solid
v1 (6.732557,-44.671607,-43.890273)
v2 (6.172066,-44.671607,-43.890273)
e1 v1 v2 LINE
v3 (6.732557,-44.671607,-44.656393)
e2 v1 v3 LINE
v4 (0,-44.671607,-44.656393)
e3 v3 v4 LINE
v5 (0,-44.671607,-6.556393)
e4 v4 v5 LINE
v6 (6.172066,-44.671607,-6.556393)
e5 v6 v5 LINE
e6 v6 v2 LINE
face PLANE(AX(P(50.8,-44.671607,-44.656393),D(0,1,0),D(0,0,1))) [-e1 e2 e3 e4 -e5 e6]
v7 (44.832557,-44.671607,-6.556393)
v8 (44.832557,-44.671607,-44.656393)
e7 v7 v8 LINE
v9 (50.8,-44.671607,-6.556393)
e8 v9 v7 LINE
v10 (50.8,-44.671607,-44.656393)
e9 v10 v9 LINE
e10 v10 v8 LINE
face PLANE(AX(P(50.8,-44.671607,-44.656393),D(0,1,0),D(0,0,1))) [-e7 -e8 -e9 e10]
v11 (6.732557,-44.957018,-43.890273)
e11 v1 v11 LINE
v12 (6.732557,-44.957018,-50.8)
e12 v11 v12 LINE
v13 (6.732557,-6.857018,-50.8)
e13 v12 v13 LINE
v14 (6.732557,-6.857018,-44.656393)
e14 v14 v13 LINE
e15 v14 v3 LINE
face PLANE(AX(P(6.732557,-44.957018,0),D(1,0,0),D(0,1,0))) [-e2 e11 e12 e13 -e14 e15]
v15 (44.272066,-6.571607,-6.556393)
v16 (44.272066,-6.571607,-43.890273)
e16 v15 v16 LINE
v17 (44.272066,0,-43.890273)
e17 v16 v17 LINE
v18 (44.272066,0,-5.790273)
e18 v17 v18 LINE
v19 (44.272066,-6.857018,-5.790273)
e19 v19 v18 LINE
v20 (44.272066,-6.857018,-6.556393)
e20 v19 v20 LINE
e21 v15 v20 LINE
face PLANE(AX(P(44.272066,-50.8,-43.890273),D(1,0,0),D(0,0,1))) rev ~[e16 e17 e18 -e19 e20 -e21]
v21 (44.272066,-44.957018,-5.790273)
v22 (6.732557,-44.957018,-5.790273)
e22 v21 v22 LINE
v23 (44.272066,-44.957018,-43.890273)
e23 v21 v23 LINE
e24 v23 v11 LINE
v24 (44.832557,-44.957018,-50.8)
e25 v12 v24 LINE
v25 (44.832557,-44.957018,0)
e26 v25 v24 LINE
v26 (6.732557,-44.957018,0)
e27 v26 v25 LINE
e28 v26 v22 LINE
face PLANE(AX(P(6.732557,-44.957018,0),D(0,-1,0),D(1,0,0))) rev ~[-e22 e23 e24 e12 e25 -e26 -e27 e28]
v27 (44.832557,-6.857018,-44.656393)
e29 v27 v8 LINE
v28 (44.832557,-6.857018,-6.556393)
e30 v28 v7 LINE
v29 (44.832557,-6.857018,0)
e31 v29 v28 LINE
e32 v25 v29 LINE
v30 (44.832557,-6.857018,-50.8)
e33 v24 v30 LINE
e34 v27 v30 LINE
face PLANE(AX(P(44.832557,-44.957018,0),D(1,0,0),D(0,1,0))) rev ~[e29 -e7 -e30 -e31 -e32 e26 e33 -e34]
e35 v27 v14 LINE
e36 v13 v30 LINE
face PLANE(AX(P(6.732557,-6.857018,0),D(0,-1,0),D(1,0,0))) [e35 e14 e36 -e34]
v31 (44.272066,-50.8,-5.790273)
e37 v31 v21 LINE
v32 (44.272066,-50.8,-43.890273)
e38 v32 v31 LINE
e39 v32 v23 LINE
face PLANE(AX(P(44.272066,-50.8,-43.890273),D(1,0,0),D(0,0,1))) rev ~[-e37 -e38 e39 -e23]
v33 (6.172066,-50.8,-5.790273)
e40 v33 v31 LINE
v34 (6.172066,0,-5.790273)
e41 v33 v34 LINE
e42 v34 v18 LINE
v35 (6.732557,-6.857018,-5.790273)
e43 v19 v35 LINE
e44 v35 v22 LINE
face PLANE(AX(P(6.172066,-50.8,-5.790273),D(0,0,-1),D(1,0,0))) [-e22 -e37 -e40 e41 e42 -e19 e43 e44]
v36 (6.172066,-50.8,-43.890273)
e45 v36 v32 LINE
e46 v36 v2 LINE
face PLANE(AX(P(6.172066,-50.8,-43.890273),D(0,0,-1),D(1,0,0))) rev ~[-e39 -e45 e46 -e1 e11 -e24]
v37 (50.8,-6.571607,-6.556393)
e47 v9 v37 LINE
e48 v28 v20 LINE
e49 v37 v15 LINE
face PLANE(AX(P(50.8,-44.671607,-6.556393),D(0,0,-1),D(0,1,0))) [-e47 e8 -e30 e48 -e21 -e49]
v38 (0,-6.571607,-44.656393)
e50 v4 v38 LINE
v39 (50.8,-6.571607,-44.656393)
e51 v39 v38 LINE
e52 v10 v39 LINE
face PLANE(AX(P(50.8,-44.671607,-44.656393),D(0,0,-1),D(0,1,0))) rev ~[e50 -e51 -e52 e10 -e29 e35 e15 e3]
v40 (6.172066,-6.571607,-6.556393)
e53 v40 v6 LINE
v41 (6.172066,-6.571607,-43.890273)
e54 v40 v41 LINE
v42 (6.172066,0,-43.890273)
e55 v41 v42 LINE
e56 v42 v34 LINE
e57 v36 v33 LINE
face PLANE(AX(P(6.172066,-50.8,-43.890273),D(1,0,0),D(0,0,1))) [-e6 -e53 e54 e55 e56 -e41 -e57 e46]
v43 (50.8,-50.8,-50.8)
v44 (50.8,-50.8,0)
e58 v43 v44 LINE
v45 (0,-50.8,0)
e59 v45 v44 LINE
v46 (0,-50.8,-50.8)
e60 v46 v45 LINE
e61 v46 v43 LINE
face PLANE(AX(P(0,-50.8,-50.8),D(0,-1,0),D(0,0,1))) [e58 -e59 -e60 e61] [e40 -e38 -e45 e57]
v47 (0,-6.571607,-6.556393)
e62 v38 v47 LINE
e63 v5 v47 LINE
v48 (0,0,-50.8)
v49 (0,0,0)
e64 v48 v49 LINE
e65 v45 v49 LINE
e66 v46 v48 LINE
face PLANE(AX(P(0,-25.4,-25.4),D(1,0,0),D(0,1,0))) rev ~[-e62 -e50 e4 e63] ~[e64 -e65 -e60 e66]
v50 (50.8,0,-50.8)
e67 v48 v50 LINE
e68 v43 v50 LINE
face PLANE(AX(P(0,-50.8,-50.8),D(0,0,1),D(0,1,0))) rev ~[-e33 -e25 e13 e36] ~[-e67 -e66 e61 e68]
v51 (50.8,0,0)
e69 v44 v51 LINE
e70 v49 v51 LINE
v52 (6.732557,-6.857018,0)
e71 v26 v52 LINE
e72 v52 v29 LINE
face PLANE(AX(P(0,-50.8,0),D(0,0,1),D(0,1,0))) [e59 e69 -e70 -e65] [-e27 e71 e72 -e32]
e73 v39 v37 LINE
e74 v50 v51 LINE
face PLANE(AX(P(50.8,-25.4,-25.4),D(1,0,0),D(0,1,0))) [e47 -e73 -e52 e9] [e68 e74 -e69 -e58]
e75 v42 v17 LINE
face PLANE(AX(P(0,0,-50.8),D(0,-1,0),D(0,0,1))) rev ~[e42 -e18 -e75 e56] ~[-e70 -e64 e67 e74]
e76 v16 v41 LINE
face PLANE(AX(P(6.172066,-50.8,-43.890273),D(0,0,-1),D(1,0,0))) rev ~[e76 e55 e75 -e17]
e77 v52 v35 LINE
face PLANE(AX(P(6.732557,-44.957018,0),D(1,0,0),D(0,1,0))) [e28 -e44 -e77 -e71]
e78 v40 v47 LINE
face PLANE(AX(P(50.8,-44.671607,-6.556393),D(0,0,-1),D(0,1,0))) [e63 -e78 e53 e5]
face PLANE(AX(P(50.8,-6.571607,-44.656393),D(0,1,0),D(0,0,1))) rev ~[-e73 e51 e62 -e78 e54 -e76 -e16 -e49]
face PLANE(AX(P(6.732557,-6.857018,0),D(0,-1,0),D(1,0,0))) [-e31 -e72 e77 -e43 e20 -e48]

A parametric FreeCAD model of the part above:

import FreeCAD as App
import Part
import Sketcher

V = App.Vector
Q = App.Units.Quantity


def add_polygon(sketch, points):
    """Adds a closed chain of lines whose ends are joined by coincident constraints."""
    first, n = sketch.GeometryCount, len(points)
    for a, b in zip(points, points[1:] + points[:1]):
        sketch.addGeometry(Part.LineSegment(App.Vector(*a, 0), App.Vector(*b, 0)), False)
    for i in range(n):
        sketch.addConstraint(Sketcher.Constraint("Coincident", first + i, 2, first + (i + 1) % n, 1))

doc = App.newDocument("Part")
body = doc.addObject("PartDesign::Body", "Body")

sketch1 = doc.addObject("Sketcher::SketchObject", "Sketch")
body.addObject(sketch1)
sketch1.AttachmentSupport = (doc.YZ_Plane, [""])
sketch1.MapMode = "FlatFace"
add_polygon(sketch1, [(-51, 0), (-51, -51), (0, -51), (0, 0)])
sketch1.addConstraint([
    Sketcher.Constraint("Vertical", 0),
    Sketcher.Constraint("Horizontal", 1),
    Sketcher.Constraint("Vertical", 2),
    Sketcher.Constraint("Horizontal", 3),
    Sketcher.Constraint("Coincident", 2, 2, -1, 1),
    Sketcher.Constraint("Equal", 3, 0),
    Sketcher.Constraint("DistanceX", 1, 1, 1, 2, Q("2 in")),
])
pad1 = doc.addObject("PartDesign::Pad", "Pad")
body.addObject(pad1)
pad1.Profile = sketch1
pad1.Length = Q("2 in")

sketch2 = doc.addObject("Sketcher::SketchObject", "Sketch001")
body.addObject(sketch2)
sketch2.AttachmentSupport = (doc.YZ_Plane, [""])
sketch2.MapMode = "FlatFace"
sketch2.AttachmentOffset = App.Placement(V(0, 0, 2 * 25.4), App.Rotation())
add_polygon(sketch2, [(-45, -7), (-45, -45), (-7, -45), (-7, -7)])
sketch2.addConstraint([
    Sketcher.Constraint("Vertical", 0),
    Sketcher.Constraint("Horizontal", 1),
    Sketcher.Constraint("Vertical", 2),
    Sketcher.Constraint("Horizontal", 3),
    Sketcher.Constraint("Equal", 3, 0),
    Sketcher.Constraint("DistanceX", 1, 1, 1, 2, Q("1.5 in")),
    Sketcher.Constraint("DistanceX", 0, 2, -1, 1, Q("44.671607 mm")),
    Sketcher.Constraint("DistanceY", 0, 2, -1, 1, Q("44.656393 mm")),
])
pocket1 = doc.addObject("PartDesign::Pocket", "Pocket")
body.addObject(pocket1)
pocket1.Profile = sketch2
pocket1.Length = Q("2 in")

sketch3 = doc.addObject("Sketcher::SketchObject", "Sketch002")
body.addObject(sketch3)
sketch3.AttachmentSupport = (doc.XZ_Plane, [""])
sketch3.MapMode = "FlatFace"
sketch3.AttachmentOffset = App.Placement(V(0, 0, 2 * 25.4), App.Rotation())
add_polygon(sketch3, [(6, -6), (6, -44), (44, -44), (44, -6)])
sketch3.addConstraint([
    Sketcher.Constraint("Vertical", 0),
    Sketcher.Constraint("Horizontal", 1),
    Sketcher.Constraint("Vertical", 2),
    Sketcher.Constraint("Horizontal", 3),
    Sketcher.Constraint("Equal", 3, 0),
    Sketcher.Constraint("DistanceX", 1, 1, 1, 2, Q("1.5 in")),
    Sketcher.Constraint("DistanceX", -1, 1, 0, 2, Q("6.172066 mm")),
    Sketcher.Constraint("DistanceY", 0, 2, -1, 1, Q("43.890273 mm")),
])
pocket2 = doc.addObject("PartDesign::Pocket", "Pocket001")
body.addObject(pocket2)
pocket2.Profile = sketch3
pocket2.Length = Q("2 in")

sketch4 = doc.addObject("Sketcher::SketchObject", "Sketch003")
body.addObject(sketch4)
sketch4.AttachmentSupport = (doc.XY_Plane, [""])
sketch4.MapMode = "FlatFace"
add_polygon(sketch4, [(7, -7), (7, -45), (45, -45), (45, -7)])
sketch4.addConstraint([
    Sketcher.Constraint("Vertical", 0),
    Sketcher.Constraint("Horizontal", 1),
    Sketcher.Constraint("Vertical", 2),
    Sketcher.Constraint("Horizontal", 3),
    Sketcher.Constraint("Equal", 3, 0),
    Sketcher.Constraint("DistanceX", 1, 1, 1, 2, Q("1.5 in")),
    Sketcher.Constraint("DistanceX", -1, 1, 0, 2, Q("6.732557 mm")),
    Sketcher.Constraint("DistanceY", 0, 2, -1, 1, Q("44.957018 mm")),
])
pocket3 = doc.addObject("PartDesign::Pocket", "Pocket002")
body.addObject(pocket3)
pocket3.Profile = sketch4
pocket3.Length = Q("2 in")

doc.recompute()
